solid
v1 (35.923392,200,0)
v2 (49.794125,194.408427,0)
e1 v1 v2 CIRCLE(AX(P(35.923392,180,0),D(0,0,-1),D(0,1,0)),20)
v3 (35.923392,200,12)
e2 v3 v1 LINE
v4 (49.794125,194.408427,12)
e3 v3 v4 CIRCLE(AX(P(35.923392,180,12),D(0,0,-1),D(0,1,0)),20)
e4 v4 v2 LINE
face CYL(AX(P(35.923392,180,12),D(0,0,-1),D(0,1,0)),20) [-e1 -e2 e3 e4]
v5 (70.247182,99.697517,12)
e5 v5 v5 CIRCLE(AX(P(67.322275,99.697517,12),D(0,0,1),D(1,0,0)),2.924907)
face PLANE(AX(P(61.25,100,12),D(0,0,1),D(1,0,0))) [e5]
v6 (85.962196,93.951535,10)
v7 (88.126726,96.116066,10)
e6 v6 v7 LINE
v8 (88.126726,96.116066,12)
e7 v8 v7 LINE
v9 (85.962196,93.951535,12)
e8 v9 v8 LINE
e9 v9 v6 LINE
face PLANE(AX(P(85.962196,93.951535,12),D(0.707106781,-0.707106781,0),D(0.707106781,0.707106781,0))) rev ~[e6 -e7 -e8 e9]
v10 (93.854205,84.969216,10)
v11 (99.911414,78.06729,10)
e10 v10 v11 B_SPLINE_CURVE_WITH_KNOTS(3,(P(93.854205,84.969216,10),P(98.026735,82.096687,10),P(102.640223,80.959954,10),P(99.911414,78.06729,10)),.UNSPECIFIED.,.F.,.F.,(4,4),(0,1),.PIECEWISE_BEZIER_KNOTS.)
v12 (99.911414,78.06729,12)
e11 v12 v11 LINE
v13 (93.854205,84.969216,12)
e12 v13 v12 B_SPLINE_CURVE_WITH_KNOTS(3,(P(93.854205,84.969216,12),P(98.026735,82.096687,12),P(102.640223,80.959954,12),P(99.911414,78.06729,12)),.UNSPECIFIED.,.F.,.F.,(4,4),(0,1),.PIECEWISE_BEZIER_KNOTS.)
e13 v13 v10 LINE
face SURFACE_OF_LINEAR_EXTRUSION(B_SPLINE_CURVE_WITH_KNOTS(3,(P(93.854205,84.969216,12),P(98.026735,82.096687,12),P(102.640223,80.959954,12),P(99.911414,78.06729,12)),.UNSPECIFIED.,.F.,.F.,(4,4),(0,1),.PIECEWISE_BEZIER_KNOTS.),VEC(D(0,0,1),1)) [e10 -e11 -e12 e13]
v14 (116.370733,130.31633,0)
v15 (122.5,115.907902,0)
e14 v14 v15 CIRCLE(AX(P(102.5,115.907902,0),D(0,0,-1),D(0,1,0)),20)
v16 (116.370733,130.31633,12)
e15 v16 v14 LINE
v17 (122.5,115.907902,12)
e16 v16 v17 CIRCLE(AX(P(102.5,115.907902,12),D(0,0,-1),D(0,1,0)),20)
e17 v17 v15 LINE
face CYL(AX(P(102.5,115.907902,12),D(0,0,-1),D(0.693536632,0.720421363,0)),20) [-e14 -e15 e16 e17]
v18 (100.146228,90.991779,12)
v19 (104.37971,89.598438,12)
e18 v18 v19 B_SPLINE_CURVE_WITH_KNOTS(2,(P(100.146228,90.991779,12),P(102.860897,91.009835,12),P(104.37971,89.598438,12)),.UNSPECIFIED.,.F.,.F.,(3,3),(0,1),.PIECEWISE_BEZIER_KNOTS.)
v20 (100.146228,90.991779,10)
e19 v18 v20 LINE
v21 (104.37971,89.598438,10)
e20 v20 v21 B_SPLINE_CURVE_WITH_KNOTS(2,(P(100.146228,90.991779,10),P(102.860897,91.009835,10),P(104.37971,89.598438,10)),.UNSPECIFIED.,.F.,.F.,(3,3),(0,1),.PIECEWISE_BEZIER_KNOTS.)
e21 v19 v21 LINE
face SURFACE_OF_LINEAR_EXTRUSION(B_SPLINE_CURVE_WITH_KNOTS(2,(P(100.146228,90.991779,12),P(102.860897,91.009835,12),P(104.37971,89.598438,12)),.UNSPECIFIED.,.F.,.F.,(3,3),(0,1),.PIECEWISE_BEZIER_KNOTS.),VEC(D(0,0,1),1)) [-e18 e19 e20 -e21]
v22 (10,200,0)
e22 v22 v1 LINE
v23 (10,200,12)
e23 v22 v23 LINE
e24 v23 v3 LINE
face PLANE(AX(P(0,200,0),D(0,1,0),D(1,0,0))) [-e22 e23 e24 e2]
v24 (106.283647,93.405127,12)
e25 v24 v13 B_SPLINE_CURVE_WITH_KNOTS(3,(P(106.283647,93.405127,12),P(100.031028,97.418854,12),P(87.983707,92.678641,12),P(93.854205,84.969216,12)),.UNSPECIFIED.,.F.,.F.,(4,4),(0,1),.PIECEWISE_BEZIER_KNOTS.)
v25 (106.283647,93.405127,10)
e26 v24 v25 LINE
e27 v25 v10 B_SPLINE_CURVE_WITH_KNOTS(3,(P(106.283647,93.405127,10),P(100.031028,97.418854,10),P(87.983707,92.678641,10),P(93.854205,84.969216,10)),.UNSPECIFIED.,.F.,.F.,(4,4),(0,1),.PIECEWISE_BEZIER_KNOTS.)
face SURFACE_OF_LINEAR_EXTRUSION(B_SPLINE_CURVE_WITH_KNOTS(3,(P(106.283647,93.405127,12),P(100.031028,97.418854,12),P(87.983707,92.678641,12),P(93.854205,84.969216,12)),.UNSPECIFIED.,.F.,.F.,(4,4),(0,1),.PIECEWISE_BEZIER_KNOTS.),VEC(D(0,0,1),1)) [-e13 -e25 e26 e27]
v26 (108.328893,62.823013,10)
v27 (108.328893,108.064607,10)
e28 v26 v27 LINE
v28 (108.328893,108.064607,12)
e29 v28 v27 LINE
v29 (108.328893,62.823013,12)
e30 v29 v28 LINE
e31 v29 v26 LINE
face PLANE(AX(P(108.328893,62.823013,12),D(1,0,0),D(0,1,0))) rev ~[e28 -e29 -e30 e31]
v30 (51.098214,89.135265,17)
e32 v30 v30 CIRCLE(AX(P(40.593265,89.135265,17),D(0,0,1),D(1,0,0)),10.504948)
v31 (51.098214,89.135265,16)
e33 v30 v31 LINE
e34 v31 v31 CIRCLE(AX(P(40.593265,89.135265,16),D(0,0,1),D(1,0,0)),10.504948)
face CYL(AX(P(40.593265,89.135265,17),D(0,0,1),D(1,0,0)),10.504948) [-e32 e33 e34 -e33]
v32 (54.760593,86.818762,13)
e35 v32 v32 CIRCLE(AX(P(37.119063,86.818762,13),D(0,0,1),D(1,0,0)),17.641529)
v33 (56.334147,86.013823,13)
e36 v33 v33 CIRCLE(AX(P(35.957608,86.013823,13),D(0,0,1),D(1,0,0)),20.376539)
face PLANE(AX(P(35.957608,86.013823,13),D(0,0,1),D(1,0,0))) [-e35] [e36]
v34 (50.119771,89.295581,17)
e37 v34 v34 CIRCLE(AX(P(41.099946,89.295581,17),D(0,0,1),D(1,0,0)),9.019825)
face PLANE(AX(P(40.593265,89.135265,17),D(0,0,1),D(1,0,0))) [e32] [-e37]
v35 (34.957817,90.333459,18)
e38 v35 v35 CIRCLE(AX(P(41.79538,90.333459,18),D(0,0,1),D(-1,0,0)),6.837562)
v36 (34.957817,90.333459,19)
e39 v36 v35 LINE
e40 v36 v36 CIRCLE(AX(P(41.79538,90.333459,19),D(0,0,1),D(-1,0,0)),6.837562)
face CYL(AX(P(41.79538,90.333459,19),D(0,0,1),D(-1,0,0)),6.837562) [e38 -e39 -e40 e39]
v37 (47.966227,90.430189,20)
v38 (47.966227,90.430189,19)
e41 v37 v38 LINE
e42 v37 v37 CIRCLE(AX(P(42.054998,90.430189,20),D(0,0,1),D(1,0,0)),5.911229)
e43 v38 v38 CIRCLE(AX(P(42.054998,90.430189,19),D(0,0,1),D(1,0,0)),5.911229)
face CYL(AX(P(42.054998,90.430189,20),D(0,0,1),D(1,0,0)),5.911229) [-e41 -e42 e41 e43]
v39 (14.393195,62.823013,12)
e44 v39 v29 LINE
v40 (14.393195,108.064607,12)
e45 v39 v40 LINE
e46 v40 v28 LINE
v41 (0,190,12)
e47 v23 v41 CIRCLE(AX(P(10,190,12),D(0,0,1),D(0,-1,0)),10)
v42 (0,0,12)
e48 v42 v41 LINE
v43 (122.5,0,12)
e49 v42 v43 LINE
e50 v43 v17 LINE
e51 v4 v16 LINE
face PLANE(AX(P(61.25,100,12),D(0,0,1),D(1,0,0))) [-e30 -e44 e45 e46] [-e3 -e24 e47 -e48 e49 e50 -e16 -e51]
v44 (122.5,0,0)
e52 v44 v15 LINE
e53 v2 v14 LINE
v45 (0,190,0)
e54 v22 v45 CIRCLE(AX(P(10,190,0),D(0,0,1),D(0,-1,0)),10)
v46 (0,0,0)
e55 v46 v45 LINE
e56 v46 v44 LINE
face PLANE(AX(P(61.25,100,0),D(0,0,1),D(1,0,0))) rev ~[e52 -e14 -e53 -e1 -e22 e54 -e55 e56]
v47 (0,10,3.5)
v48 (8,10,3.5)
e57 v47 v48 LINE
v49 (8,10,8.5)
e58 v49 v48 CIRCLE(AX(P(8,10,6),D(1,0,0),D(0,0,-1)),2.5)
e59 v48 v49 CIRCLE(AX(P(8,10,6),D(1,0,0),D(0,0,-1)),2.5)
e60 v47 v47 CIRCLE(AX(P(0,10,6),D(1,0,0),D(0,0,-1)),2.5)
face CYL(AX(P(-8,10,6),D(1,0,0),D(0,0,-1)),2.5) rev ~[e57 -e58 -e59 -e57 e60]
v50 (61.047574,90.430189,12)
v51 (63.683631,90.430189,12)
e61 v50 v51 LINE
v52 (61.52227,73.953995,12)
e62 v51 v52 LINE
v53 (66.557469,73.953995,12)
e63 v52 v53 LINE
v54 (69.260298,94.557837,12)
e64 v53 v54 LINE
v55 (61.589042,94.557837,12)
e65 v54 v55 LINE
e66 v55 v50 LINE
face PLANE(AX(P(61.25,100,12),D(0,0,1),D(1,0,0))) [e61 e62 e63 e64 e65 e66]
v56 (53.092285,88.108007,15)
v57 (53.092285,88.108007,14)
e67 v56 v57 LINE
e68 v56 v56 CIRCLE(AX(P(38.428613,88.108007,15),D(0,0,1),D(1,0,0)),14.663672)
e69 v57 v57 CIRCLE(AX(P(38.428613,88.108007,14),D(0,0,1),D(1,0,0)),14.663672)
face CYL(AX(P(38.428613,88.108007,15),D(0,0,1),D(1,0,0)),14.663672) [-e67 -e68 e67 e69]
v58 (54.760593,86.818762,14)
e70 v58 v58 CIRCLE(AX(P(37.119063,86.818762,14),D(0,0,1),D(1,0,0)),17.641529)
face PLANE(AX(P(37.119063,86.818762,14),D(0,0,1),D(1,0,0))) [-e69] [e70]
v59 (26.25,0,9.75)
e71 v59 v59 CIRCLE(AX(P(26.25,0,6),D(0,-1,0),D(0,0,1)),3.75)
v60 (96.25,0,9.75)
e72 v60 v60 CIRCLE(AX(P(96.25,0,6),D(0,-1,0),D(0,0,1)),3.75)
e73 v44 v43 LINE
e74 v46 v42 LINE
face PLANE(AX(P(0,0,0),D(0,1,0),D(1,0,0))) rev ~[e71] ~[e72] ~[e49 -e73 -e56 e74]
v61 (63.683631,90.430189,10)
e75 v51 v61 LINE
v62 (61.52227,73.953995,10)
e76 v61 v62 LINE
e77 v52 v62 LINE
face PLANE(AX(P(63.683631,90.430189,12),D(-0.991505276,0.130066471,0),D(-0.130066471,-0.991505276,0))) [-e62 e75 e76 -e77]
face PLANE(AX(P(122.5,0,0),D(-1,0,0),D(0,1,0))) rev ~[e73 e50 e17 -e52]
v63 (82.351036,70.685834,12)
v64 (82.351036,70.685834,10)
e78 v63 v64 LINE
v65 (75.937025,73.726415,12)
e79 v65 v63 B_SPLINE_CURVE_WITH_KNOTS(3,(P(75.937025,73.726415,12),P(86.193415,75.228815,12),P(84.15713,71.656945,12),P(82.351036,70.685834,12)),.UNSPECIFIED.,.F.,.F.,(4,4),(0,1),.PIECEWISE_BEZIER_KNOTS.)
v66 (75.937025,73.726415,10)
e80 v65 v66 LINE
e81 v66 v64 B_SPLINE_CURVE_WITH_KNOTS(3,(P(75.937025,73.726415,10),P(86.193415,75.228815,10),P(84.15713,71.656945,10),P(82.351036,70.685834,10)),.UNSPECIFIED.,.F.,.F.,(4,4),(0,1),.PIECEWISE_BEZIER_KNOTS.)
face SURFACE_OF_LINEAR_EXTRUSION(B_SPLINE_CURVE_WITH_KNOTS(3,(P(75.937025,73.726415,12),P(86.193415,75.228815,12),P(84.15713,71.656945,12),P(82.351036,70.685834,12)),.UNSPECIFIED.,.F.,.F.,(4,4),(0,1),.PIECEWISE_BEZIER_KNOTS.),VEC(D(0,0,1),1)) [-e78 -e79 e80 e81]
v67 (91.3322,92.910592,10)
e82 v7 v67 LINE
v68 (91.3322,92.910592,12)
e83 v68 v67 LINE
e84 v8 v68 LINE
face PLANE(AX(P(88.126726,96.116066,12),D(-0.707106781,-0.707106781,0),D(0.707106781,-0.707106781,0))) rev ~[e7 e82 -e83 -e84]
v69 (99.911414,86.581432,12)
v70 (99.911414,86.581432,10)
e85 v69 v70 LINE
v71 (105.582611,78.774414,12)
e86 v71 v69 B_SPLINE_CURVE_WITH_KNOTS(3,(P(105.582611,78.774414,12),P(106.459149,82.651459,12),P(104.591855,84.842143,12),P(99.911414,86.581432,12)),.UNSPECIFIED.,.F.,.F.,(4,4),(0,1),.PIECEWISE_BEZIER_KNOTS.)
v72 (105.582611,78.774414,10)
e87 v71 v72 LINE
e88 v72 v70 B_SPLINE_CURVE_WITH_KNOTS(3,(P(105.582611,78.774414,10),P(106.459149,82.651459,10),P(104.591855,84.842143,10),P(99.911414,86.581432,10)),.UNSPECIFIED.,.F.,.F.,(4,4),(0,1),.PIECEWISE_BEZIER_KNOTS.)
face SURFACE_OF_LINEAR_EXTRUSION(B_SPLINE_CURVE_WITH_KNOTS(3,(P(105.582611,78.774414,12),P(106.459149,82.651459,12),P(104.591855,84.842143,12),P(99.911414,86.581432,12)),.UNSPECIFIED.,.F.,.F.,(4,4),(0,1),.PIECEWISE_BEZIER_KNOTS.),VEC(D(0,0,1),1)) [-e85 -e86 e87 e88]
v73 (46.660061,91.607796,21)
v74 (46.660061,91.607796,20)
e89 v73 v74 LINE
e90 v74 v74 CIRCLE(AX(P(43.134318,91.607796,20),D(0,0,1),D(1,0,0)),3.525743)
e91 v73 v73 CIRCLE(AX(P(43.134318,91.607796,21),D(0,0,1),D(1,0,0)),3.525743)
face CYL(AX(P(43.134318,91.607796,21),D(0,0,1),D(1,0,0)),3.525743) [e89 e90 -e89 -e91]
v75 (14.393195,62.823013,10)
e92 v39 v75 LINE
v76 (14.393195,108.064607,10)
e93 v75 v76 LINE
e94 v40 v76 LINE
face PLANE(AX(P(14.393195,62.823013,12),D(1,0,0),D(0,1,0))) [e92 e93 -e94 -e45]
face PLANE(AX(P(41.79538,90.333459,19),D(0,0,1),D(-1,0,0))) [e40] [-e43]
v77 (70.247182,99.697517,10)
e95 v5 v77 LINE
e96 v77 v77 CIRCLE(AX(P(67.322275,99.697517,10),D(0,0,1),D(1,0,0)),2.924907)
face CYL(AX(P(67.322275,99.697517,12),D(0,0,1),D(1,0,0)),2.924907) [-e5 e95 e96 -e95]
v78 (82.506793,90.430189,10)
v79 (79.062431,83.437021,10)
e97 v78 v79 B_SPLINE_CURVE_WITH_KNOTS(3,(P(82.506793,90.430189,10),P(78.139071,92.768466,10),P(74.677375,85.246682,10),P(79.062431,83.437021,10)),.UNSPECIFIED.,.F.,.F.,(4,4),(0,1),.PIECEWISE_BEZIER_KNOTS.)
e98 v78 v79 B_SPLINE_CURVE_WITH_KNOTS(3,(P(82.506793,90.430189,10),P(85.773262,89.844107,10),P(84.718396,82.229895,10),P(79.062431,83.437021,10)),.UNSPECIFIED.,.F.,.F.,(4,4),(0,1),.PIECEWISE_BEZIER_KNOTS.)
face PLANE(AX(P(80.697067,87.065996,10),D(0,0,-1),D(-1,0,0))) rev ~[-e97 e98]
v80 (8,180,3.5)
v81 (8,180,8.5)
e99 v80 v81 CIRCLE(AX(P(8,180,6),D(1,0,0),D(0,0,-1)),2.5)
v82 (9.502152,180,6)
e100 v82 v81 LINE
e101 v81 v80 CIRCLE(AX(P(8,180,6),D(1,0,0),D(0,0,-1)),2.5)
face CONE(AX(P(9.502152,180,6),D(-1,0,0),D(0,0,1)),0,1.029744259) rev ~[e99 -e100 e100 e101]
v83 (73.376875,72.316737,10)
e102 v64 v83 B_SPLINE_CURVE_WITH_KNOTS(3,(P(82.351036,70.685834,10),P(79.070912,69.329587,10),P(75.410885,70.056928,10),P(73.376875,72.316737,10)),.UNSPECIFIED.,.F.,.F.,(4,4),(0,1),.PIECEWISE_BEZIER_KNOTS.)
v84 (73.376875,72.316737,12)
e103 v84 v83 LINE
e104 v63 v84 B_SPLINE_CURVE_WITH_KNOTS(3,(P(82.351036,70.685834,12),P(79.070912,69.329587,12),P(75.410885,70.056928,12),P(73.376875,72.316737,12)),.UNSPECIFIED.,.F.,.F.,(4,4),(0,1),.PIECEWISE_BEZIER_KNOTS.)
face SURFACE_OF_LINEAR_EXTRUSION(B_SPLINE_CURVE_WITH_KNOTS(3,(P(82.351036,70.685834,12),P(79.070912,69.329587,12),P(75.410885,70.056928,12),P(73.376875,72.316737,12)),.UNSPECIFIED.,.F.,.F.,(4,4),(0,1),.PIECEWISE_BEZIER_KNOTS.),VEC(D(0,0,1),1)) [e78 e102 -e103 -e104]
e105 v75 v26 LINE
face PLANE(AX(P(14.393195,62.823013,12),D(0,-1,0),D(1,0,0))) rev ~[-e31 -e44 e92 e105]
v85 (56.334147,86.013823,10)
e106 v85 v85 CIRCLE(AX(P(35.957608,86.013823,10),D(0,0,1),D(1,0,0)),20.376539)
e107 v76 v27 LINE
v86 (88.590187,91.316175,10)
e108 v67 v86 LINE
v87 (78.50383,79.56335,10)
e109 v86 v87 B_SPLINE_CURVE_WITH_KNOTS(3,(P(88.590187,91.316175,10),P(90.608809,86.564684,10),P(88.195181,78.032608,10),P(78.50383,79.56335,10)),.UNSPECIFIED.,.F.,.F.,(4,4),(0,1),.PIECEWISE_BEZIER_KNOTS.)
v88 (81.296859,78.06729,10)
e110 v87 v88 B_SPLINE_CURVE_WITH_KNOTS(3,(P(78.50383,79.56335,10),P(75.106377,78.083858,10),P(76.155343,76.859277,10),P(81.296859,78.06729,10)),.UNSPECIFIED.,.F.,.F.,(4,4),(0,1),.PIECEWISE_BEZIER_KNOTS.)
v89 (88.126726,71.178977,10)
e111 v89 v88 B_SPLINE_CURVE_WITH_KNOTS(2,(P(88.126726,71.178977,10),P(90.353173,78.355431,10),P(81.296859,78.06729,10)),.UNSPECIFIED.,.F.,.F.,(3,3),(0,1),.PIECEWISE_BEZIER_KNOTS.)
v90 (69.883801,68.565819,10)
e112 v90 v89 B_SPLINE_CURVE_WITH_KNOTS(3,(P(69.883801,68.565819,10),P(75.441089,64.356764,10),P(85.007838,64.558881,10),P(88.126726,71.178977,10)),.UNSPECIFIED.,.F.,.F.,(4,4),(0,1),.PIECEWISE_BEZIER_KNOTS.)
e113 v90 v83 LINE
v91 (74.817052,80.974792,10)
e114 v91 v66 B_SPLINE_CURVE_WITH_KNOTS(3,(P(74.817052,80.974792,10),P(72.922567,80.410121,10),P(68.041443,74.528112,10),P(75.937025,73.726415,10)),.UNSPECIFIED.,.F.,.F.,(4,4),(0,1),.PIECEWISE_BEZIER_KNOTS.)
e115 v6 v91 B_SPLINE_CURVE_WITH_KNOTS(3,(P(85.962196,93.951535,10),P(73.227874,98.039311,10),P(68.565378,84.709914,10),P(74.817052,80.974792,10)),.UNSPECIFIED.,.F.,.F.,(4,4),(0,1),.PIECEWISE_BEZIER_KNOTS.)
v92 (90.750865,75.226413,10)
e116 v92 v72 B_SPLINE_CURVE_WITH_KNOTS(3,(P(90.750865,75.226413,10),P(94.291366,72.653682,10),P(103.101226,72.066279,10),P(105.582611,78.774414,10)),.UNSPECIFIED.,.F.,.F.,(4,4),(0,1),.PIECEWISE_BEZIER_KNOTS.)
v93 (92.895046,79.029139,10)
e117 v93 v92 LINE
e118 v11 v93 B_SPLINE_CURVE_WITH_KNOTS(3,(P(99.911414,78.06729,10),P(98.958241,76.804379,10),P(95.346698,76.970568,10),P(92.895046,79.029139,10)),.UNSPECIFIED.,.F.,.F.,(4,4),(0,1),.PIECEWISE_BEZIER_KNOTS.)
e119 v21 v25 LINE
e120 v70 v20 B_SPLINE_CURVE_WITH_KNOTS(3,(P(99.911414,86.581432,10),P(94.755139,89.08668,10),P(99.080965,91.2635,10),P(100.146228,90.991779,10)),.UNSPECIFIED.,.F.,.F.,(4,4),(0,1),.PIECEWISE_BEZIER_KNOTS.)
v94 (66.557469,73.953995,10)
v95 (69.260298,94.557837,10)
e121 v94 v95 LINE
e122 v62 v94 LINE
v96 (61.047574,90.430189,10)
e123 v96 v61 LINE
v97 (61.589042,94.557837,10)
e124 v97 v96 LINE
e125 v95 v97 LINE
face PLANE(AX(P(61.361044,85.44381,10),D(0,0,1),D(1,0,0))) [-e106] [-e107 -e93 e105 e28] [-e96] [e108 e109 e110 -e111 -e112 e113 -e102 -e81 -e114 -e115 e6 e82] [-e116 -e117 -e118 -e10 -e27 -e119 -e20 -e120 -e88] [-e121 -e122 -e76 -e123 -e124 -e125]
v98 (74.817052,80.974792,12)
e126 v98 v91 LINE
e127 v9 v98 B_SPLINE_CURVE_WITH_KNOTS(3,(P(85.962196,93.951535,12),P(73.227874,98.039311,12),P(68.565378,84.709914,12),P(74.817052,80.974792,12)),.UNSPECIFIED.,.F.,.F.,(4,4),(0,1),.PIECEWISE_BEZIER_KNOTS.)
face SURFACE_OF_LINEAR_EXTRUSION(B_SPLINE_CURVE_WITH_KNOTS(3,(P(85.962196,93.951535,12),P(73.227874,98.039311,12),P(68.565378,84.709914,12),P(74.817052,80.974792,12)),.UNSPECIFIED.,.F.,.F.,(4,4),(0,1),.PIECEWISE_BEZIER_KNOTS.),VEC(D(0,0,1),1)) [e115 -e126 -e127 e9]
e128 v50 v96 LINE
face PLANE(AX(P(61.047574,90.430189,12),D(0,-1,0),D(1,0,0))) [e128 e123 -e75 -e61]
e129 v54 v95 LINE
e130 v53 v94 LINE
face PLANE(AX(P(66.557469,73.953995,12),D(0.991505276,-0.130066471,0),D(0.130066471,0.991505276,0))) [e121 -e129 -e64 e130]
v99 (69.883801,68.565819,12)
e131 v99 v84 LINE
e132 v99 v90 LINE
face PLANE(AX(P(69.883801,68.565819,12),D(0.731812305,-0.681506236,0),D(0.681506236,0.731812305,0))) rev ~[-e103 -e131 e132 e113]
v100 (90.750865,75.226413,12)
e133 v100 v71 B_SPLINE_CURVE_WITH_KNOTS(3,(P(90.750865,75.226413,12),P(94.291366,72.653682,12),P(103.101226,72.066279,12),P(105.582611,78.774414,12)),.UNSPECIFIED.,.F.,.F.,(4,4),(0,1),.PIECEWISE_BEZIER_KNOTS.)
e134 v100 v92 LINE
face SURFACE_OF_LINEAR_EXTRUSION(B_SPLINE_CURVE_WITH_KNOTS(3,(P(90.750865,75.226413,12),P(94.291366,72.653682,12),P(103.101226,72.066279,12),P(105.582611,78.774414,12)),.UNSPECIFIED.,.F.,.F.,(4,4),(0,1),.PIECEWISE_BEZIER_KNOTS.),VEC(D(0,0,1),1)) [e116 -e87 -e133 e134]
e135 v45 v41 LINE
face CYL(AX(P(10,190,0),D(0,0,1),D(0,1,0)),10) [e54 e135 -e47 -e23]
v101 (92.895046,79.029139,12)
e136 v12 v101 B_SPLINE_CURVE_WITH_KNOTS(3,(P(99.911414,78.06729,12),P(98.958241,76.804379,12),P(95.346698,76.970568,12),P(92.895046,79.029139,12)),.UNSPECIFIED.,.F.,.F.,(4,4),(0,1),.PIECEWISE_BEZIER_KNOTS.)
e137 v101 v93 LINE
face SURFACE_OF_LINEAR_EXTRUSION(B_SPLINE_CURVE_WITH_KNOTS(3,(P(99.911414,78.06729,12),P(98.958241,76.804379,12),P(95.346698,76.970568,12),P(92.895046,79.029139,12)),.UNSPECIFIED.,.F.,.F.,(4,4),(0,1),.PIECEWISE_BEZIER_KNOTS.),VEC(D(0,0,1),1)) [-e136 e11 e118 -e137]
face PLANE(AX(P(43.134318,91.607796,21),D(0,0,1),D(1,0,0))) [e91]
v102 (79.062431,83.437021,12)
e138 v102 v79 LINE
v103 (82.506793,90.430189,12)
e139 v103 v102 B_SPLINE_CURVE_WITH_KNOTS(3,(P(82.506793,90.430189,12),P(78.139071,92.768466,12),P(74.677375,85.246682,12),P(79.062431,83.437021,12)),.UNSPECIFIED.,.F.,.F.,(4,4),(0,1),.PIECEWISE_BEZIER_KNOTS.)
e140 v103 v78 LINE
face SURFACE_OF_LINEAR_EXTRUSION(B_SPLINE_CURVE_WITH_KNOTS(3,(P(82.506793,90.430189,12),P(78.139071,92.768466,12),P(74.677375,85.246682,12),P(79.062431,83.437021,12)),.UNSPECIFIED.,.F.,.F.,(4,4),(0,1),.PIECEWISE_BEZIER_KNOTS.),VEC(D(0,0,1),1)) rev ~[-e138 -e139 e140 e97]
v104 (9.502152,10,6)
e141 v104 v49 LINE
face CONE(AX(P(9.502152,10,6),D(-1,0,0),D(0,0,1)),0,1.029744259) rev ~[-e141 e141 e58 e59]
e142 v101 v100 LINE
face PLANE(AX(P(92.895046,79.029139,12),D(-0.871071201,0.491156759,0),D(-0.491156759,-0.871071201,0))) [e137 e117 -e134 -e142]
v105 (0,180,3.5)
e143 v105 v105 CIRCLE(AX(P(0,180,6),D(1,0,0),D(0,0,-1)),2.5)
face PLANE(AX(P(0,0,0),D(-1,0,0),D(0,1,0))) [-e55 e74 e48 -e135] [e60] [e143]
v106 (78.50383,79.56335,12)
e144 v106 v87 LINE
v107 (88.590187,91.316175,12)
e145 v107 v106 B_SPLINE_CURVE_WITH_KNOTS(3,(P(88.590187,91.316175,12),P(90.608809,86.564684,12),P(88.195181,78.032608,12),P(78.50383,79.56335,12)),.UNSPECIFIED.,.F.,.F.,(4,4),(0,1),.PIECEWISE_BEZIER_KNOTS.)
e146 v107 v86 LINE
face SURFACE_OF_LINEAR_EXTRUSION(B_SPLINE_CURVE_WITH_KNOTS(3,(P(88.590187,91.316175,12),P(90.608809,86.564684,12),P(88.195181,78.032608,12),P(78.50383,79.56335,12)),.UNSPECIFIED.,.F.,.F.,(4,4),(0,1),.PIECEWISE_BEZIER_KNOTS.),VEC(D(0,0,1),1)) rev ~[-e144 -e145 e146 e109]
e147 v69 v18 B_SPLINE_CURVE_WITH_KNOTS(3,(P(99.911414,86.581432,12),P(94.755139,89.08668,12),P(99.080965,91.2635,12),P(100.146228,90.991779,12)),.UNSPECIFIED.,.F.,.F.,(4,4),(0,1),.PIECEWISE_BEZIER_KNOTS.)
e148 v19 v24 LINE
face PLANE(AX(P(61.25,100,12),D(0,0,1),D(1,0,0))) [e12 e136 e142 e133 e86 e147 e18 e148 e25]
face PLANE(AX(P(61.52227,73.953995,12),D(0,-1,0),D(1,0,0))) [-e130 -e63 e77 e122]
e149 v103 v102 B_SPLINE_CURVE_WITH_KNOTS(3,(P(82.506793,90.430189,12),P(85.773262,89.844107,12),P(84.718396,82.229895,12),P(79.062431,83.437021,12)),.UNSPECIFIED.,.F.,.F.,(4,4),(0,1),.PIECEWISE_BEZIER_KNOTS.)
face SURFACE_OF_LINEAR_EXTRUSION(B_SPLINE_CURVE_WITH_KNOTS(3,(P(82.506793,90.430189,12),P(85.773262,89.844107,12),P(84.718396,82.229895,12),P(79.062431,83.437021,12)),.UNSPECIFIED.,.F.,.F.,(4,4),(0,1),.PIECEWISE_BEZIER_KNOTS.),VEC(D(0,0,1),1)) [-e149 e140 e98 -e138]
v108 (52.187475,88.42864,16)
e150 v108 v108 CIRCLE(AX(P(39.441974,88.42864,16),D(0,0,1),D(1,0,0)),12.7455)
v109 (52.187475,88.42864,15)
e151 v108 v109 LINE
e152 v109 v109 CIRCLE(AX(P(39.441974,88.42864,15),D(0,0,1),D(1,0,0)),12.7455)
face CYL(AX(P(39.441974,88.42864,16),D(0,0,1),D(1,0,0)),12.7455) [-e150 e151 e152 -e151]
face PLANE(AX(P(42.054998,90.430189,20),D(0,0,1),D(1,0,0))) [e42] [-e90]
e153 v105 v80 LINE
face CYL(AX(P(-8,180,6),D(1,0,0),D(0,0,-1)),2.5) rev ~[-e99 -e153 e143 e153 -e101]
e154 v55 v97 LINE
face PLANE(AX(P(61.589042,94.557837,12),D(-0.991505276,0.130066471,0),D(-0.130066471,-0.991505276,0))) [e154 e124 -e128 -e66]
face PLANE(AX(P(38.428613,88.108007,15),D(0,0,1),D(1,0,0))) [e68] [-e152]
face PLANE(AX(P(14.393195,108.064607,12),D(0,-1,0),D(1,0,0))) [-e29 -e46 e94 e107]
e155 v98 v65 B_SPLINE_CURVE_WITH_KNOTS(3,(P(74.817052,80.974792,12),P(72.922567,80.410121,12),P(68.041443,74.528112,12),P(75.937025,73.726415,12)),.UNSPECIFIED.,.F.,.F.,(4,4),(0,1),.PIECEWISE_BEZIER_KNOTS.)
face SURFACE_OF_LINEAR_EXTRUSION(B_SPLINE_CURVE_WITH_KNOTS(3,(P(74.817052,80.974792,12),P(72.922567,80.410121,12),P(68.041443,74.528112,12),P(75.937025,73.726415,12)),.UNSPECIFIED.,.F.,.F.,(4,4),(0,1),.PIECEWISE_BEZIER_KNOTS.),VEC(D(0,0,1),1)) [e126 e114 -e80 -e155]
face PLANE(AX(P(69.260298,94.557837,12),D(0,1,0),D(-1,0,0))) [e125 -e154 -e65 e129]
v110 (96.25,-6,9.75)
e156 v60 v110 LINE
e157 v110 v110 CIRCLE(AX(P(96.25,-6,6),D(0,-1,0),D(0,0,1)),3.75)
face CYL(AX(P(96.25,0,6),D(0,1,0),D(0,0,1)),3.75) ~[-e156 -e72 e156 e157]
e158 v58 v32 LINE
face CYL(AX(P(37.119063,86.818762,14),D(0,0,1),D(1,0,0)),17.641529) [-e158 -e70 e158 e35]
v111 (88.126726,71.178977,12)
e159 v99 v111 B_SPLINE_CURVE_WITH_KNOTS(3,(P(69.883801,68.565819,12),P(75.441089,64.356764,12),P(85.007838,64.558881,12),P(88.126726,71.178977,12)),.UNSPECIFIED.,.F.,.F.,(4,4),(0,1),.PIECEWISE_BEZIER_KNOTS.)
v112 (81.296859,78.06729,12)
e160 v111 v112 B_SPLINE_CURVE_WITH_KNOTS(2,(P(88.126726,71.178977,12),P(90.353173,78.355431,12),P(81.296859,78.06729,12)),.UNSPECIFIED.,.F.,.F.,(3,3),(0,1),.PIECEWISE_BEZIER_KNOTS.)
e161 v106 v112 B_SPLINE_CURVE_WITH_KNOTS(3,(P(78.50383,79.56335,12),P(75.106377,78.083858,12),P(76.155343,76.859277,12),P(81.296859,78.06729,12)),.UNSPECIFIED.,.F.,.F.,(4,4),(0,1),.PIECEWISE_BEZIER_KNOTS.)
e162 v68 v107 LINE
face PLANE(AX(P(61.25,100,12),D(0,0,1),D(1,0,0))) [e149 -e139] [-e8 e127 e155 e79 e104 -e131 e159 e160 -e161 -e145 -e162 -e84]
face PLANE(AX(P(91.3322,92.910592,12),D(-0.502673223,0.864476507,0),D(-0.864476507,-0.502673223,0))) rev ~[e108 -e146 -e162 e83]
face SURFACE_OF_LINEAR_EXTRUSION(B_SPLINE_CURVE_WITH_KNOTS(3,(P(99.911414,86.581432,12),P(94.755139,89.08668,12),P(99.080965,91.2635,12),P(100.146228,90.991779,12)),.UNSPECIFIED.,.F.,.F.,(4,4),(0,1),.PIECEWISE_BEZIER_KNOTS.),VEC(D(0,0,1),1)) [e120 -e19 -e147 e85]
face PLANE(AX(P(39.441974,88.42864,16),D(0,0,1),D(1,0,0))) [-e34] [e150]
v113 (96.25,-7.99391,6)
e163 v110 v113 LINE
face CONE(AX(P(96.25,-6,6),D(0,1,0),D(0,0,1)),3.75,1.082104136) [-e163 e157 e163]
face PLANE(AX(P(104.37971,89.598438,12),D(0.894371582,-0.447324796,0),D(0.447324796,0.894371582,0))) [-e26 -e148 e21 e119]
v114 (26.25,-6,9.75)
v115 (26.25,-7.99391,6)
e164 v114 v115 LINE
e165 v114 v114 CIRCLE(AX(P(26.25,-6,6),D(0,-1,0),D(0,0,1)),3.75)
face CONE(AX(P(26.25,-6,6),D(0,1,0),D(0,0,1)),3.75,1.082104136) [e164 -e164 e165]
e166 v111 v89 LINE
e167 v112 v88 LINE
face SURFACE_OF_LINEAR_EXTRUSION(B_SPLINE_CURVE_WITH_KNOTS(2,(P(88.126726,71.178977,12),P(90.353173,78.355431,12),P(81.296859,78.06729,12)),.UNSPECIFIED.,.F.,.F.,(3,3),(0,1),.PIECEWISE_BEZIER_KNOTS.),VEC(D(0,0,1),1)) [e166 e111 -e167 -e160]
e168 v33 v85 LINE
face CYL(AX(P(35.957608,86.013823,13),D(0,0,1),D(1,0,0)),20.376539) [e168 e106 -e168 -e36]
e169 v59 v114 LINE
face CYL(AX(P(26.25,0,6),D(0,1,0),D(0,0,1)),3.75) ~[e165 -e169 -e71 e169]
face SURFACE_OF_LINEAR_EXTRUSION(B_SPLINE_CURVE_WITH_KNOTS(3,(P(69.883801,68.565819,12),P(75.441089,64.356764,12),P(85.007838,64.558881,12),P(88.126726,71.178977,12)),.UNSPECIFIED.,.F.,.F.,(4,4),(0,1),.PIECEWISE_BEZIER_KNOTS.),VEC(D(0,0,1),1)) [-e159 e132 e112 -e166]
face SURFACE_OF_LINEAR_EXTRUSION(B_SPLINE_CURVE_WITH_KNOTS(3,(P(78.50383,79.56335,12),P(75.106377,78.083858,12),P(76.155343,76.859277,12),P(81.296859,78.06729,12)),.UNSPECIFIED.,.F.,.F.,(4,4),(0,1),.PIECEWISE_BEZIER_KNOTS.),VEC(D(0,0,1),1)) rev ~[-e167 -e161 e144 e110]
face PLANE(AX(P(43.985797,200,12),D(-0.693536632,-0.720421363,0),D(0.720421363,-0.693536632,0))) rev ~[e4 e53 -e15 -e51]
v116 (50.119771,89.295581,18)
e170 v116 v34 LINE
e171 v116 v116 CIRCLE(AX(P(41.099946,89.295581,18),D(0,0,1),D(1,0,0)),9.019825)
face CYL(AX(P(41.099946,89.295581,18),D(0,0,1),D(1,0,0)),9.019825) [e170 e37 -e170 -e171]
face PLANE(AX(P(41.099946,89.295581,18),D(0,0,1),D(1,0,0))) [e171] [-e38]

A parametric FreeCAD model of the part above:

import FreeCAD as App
import Part
import Sketcher

V = App.Vector
Q = App.Units.Quantity


def edges_at(feature, points):
    """Names of the edges that pass closest to the given points."""
    edges = feature.Shape.Edges
    near = lambda p: min(range(len(edges)), key=lambda i: edges[i].distToShape(Part.Vertex(*p))[0])
    return sorted({f"Edge{near(p) + 1}" for p in points})


def add_polygon(sketch, points):
    """Adds a closed chain of lines whose ends are joined by coincident constraints."""
    first, n = sketch.GeometryCount, len(points)
    for a, b in zip(points, points[1:] + points[:1]):
        sketch.addGeometry(Part.LineSegment(App.Vector(*a, 0), App.Vector(*b, 0)), False)
    for i in range(n):
        sketch.addConstraint(Sketcher.Constraint("Coincident", first + i, 2, first + (i + 1) % n, 1))

doc = App.newDocument("Part")
body = doc.addObject("PartDesign::Body", "Body")

# Sketch on XY plane
sketch1 = body.newObject("Sketcher::SketchObject", "Sketch")
sketch1.AttachmentSupport = (doc.getObject("XY_Plane"), [""])
sketch1.MapMode = "FlatFace"
add_polygon(sketch1, [(0, 200), (0, 0), (122.5, 0), (122.5, 200)])  # lines 0-3
sketch1.addConstraint([
    Sketcher.Constraint("Vertical", 0),
    Sketcher.Constraint("Horizontal", 1),
    Sketcher.Constraint("Vertical", 2),
    Sketcher.Constraint("Horizontal", 3),
    Sketcher.Constraint("Coincident", 0, 2, -1, 1),
    Sketcher.Constraint("DistanceY", 0, 2, 0, 1, Q("200 mm")),
    Sketcher.Constraint("DistanceX", 1, 1, 1, 2, Q("122.5 mm")),
])
pad1 = body.newObject("PartDesign::Pad", "Pad")
pad1.Profile = sketch1
pad1.Length = 12

# Sketch on XY plane
sketch2 = body.newObject("Sketcher::SketchObject", "Sketch001")
sketch2.AttachmentSupport = (doc.getObject("XY_Plane"), [""])
sketch2.MapMode = "FlatFace"
sketch2.AttachmentOffset = App.Placement(V(0, 0, 12), App.Rotation())
add_polygon(sketch2, [(43.985797, 200), (122.5, 124.415795), (122.5, 200)])  # lines 0-2
sketch2.addConstraint([
    Sketcher.Constraint("Vertical", 1),
    Sketcher.Constraint("Horizontal", 2),
    Sketcher.Constraint("DistanceY", -1, 1, 1, 2, Q("200 mm")),
    Sketcher.Constraint("DistanceX", -1, 1, 0, 2, Q("122.5 mm")),
    Sketcher.Constraint("DistanceX", 2, 2, 2, 1, Q("78.514203 mm")),
    Sketcher.Constraint("DistanceY", 1, 1, 1, 2, Q("75.584205 mm")),
])
pocket1 = body.newObject("PartDesign::Pocket", "Pocket")
pocket1.Profile = sketch2
pocket1.Length = 12
doc.recompute()

fillet = body.newObject("PartDesign::Fillet", "Fillet")
fillet.Base = (pocket1, edges_at(pocket1, [(43.986, 200, 6)]))
fillet.Radius = 20
doc.recompute()

fillet2 = body.newObject("PartDesign::Fillet", "Fillet001")
fillet2.Base = (fillet, edges_at(fillet, [(122.5, 124.416, 6)]))
fillet2.Radius = 20
doc.recompute()

fillet3 = body.newObject("PartDesign::Fillet", "Fillet002")
fillet3.Base = (fillet2, edges_at(fillet2, [(0, 200, 6)]))
fillet3.Radius = 10

# Sketch on XZ plane
sketch3 = body.newObject("Sketcher::SketchObject", "Sketch002")
sketch3.AttachmentSupport = (doc.getObject("XZ_Plane"), [""])
sketch3.MapMode = "FlatFace"
sketch3.addGeometry([
    Part.Circle(V(26.25, 6, 0), V(0, 0, 1), 3.75),
    Part.Circle(V(96.25, 6, 0), V(0, 0, 1), 3.75),
], False)
sketch3.addConstraint([
    Sketcher.Constraint("Equal", 0, 1),
    Sketcher.Constraint("Horizontal", 0, 3, 1, 3),
    Sketcher.Constraint("Diameter", 0, Q("7.5 mm")),
    Sketcher.Constraint("DistanceY", -1, 1, 0, 3, Q("6 mm")),
    Sketcher.Constraint("DistanceX", 0, 3, 1, 3, Q("70 mm")),
    Sketcher.Constraint("DistanceX", -1, 1, 0, 3, Q("26.25 mm")),
])
pad2 = body.newObject("PartDesign::Pad", "Pad001")
pad2.Profile = sketch3
pad2.Length = 6

# Sketch on YZ plane
sketch4 = body.newObject("Sketcher::SketchObject", "Sketch003")
sketch4.AttachmentSupport = (doc.getObject("YZ_Plane"), [""])
sketch4.MapMode = "FlatFace"
sketch4.AttachmentOffset = App.Placement(V(0, 0, 26.25), App.Rotation())
add_polygon(sketch4, [(-6, 6), (-6, 9.75), (-7.99391, 6)])  # lines 0-2
sketch4.addGeometry(Part.LineSegment(V(-6, 6, 0), V(-7.99391, 6, 0)), True)  # axis
sketch4.addConstraint([
    Sketcher.Constraint("Vertical", 0),
    Sketcher.Constraint("Horizontal", 2),
    Sketcher.Constraint("Horizontal", 3),
    Sketcher.Constraint("Coincident", 3, 1, 2, 2),
    Sketcher.Constraint("Equal", 2, 3),
    Sketcher.Constraint("Angle", 1, Q("-118 deg")),
    Sketcher.Constraint("DistanceX", 0, 2, -1, 1, Q("6 mm")),
    Sketcher.Constraint("DistanceY", -1, 1, 1, 2, Q("6 mm")),
    Sketcher.Constraint("DistanceY", 0, 1, 0, 2, Q("3.75 mm")),
])
revolution = body.newObject("PartDesign::Revolution", "Revolution")
revolution.Profile = sketch4
revolution.ReferenceAxis = (sketch4, ["Axis0"])
revolution.Angle = 360

# Sketch on YZ plane
sketch5 = body.newObject("Sketcher::SketchObject", "Sketch004")
sketch5.AttachmentSupport = (doc.getObject("YZ_Plane"), [""])
sketch5.MapMode = "FlatFace"
sketch5.AttachmentOffset = App.Placement(V(0, 0, 96.25), App.Rotation())
add_polygon(sketch5, [(-6, 6), (-6, 9.75), (-7.99391, 6)])  # lines 0-2
sketch5.addGeometry(Part.LineSegment(V(-6, 6, 0), V(-7.99391, 6, 0)), True)  # axis
sketch5.addConstraint([
    Sketcher.Constraint("Vertical", 0),
    Sketcher.Constraint("Horizontal", 2),
    Sketcher.Constraint("Horizontal", 3),
    Sketcher.Constraint("Coincident", 3, 1, 2, 2),
    Sketcher.Constraint("Equal", 2, 3),
    Sketcher.Constraint("Angle", 1, Q("-118 deg")),
    Sketcher.Constraint("DistanceX", 0, 2, -1, 1, Q("6 mm")),
    Sketcher.Constraint("DistanceY", -1, 1, 1, 2, Q("6 mm")),
    Sketcher.Constraint("DistanceY", 0, 1, 0, 2, Q("3.75 mm")),
])
revolution2 = body.newObject("PartDesign::Revolution", "Revolution001")
revolution2.Profile = sketch5
revolution2.ReferenceAxis = (sketch5, ["Axis0"])
revolution2.Angle = 360

# Sketch on YZ plane
sketch6 = body.newObject("Sketcher::SketchObject", "Sketch005")
sketch6.AttachmentSupport = (doc.getObject("YZ_Plane"), [""])
sketch6.MapMode = "FlatFace"
sketch6.addGeometry(Part.Circle(V(180, 6, 0), V(0, 0, 1), 2.5), False)
sketch6.addConstraint([
    Sketcher.Constraint("Diameter", 0, Q("5 mm")),
    Sketcher.Constraint("DistanceX", -1, 1, 0, 3, Q("180 mm")),
    Sketcher.Constraint("DistanceY", -1, 1, 0, 3, Q("6 mm")),
])
doc.recompute()
hole = body.newObject("PartDesign::Hole", "Hole")
hole.Profile = sketch6
hole.ThreadType = "None"
hole.Diameter = 5
hole.DepthType = "Dimension"
hole.Depth = 8
hole.DrillPoint = "Angled"
hole.DrillPointAngle = 118
hole.Reversed = True

# Sketch on YZ plane
sketch7 = body.newObject("Sketcher::SketchObject", "Sketch006")
sketch7.AttachmentSupport = (doc.getObject("YZ_Plane"), [""])
sketch7.MapMode = "FlatFace"
sketch7.addGeometry(Part.Circle(V(10, 6, 0), V(0, 0, 1), 2.5), False)
sketch7.addConstraint([
    Sketcher.Constraint("Diameter", 0, Q("5 mm")),
    Sketcher.Constraint("DistanceX", -1, 1, 0, 3, Q("10 mm")),
    Sketcher.Constraint("DistanceY", -1, 1, 0, 3, Q("6 mm")),
])
doc.recompute()
hole2 = body.newObject("PartDesign::Hole", "Hole001")
hole2.Profile = sketch7
hole2.ThreadType = "None"
hole2.Diameter = 5
hole2.DepthType = "Dimension"
hole2.Depth = 8
hole2.DrillPoint = "Angled"
hole2.DrillPointAngle = 118
hole2.Reversed = True

# Sketch on XY plane
sketch8 = body.newObject("Sketcher::SketchObject", "Sketch007")
sketch8.AttachmentSupport = (doc.getObject("XY_Plane"), [""])
sketch8.MapMode = "FlatFace"
sketch8.AttachmentOffset = App.Placement(V(0, 0, 12), App.Rotation())
add_polygon(sketch8, [(14.393195, 108.064607), (14.393195, 62.823013), (108.328893, 62.823013), (108.328893, 108.064607)])  # lines 0-3
add_polygon(sketch8, [(61.589042, 94.557837), (69.260298, 94.557837), (66.557469, 73.953995), (61.52227, 73.953995), (63.683631, 90.430189), (61.047574, 90.430189)])  # lines 4-9
sketch8.addGeometry(Part.LineSegment(V(91.3322, 92.910592, 0), V(88.590187, 91.316175, 0)), False)  # 10
sketch8.addGeometry(Part.BSplineCurve([V(88.590187, 91.316175, 0), V(90.608809, 86.564684, 0), V(88.195181, 78.032608, 0), V(78.50383, 79.56335, 0)], [4, 4], [0, 1], False, 3, [1, 1, 1, 1], False), False)  # 11
sketch8.addGeometry(Part.BSplineCurve([V(78.50383, 79.56335, 0), V(75.106377, 78.083858, 0), V(76.155343, 76.859277, 0), V(81.296859, 78.06729, 0)], [4, 4], [0, 1], False, 3, [1, 1, 1, 1], False), False)  # 12
sketch8.addGeometry(Part.BSplineCurve([V(88.126726, 71.178977, 0), V(90.353173, 78.355431, 0), V(81.296859, 78.06729, 0)], [3, 3], [0, 1], False, 2, [1, 1, 1], False), False)  # 13
sketch8.addGeometry(Part.BSplineCurve([V(69.883801, 68.565819, 0), V(75.441089, 64.356764, 0), V(85.007838, 64.558881, 0), V(88.126726, 71.178977, 0)], [4, 4], [0, 1], False, 3, [1, 1, 1, 1], False), False)  # 14
sketch8.addGeometry(Part.LineSegment(V(69.883801, 68.565819, 0), V(73.376875, 72.316737, 0)), False)  # 15
sketch8.addGeometry(Part.BSplineCurve([V(82.351036, 70.685834, 0), V(79.070912, 69.329587, 0), V(75.410885, 70.056928, 0), V(73.376875, 72.316737, 0)], [4, 4], [0, 1], False, 3, [1, 1, 1, 1], False), False)  # 16
sketch8.addGeometry(Part.BSplineCurve([V(75.937025, 73.726415, 0), V(86.193415, 75.228815, 0), V(84.15713, 71.656945, 0), V(82.351036, 70.685834, 0)], [4, 4], [0, 1], False, 3, [1, 1, 1, 1], False), False)  # 17
sketch8.addGeometry(Part.BSplineCurve([V(74.817052, 80.974792, 0), V(72.922567, 80.410121, 0), V(68.041443, 74.528112, 0), V(75.937025, 73.726415, 0)], [4, 4], [0, 1], False, 3, [1, 1, 1, 1], False), False)  # 18
sketch8.addGeometry(Part.BSplineCurve([V(85.962196, 93.951535, 0), V(73.227874, 98.039311, 0), V(68.565378, 84.709914, 0), V(74.817052, 80.974792, 0)], [4, 4], [0, 1], False, 3, [1, 1, 1, 1], False), False)  # 19
sketch8.addGeometry(Part.LineSegment(V(85.962196, 93.951535, 0), V(88.126726, 96.116066, 0)), False)  # 20
sketch8.addGeometry(Part.LineSegment(V(88.126726, 96.116066, 0), V(91.3322, 92.910592, 0)), False)  # 21
sketch8.addGeometry(Part.BSplineCurve([V(100.146228, 90.991779, 0), V(102.860897, 91.009835, 0), V(104.37971, 89.598438, 0)], [3, 3], [0, 1], False, 2, [1, 1, 1], False), False)  # 22
sketch8.addGeometry(Part.BSplineCurve([V(99.911414, 86.581432, 0), V(94.755139, 89.08668, 0), V(99.080965, 91.2635, 0), V(100.146228, 90.991779, 0)], [4, 4], [0, 1], False, 3, [1, 1, 1, 1], False), False)  # 23
sketch8.addGeometry(Part.BSplineCurve([V(105.582611, 78.774414, 0), V(106.459149, 82.651459, 0), V(104.591855, 84.842143, 0), V(99.911414, 86.581432, 0)], [4, 4], [0, 1], False, 3, [1, 1, 1, 1], False), False)  # 24
sketch8.addGeometry(Part.BSplineCurve([V(90.750865, 75.226413, 0), V(94.291366, 72.653682, 0), V(103.101226, 72.066279, 0), V(105.582611, 78.774414, 0)], [4, 4], [0, 1], False, 3, [1, 1, 1, 1], False), False)  # 25
sketch8.addGeometry(Part.LineSegment(V(90.750865, 75.226413, 0), V(92.895046, 79.029139, 0)), False)  # 26
sketch8.addGeometry(Part.BSplineCurve([V(99.911414, 78.06729, 0), V(98.958241, 76.804379, 0), V(95.346698, 76.970568, 0), V(92.895046, 79.029139, 0)], [4, 4], [0, 1], False, 3, [1, 1, 1, 1], False), False)  # 27
sketch8.addGeometry(Part.BSplineCurve([V(93.854205, 84.969216, 0), V(98.026735, 82.096687, 0), V(102.640223, 80.959954, 0), V(99.911414, 78.06729, 0)], [4, 4], [0, 1], False, 3, [1, 1, 1, 1], False), False)  # 28
sketch8.addGeometry(Part.BSplineCurve([V(106.283647, 93.405127, 0), V(100.031028, 97.418854, 0), V(87.983707, 92.678641, 0), V(93.854205, 84.969216, 0)], [4, 4], [0, 1], False, 3, [1, 1, 1, 1], False), False)  # 29
sketch8.addGeometry(Part.LineSegment(V(106.283647, 93.405127, 0), V(104.37971, 89.598438, 0)), False)  # 30
sketch8.addGeometry(Part.Circle(V(35.957608, 86.013823, 0), V(0, 0, 1), 20.376539), False)  # 31
sketch8.addGeometry(Part.Circle(V(67.322275, 99.697517, 0), V(0, 0, 1), 2.924907), False)  # 32
sketch8.addConstraint([
    Sketcher.Constraint("Block", 11),
    Sketcher.Constraint("Block", 12),
    Sketcher.Constraint("Block", 13),
    Sketcher.Constraint("Block", 14),
    Sketcher.Constraint("Block", 16),
    Sketcher.Constraint("Block", 17),
    Sketcher.Constraint("Block", 18),
    Sketcher.Constraint("Block", 19),
    Sketcher.Constraint("Block", 22),
    Sketcher.Constraint("Block", 23),
    Sketcher.Constraint("Block", 24),
    Sketcher.Constraint("Block", 25),
    Sketcher.Constraint("Block", 27),
    Sketcher.Constraint("Block", 28),
    Sketcher.Constraint("Block", 29),
    Sketcher.Constraint("Coincident", 10, 2, 11, 1),
    Sketcher.Constraint("Coincident", 14, 1, 15, 1),
    Sketcher.Constraint("Coincident", 15, 2, 16, 2),
    Sketcher.Constraint("Coincident", 19, 1, 20, 1),
    Sketcher.Constraint("Coincident", 20, 2, 21, 1),
    Sketcher.Constraint("Coincident", 21, 2, 10, 1),
    Sketcher.Constraint("Coincident", 25, 1, 26, 1),
    Sketcher.Constraint("Coincident", 26, 2, 27, 2),
    Sketcher.Constraint("Coincident", 29, 1, 30, 1),
    Sketcher.Constraint("Coincident", 30, 2, 22, 2),
    Sketcher.Constraint("Vertical", 0),
    Sketcher.Constraint("Horizontal", 1),
    Sketcher.Constraint("Vertical", 2),
    Sketcher.Constraint("Horizontal", 3),
    Sketcher.Constraint("Horizontal", 4),
    Sketcher.Constraint("Horizontal", 6),
    Sketcher.Constraint("Horizontal", 8),
    Sketcher.Constraint("Parallel", 5, 7),
    Sketcher.Constraint("Parallel", 7, 9),
    Sketcher.Constraint("Perpendicular", 20, 21),
    Sketcher.Constraint("Angle", 20, Q("45 deg")),
    Sketcher.Constraint("Diameter", 31, Q("40.753078 mm")),
    Sketcher.Constraint("Diameter", 32, Q("5.849814 mm")),
    Sketcher.Constraint("DistanceX", 6, 2, 6, 1, Q("5.035199 mm")),
    Sketcher.Constraint("DistanceX", -1, 1, 21, 2, Q("91.3322 mm")),
    Sketcher.Constraint("DistanceX", 8, 2, 32, 3, Q("6.274702 mm")),
    Sketcher.Constraint("DistanceX", 8, 2, 15, 2, Q("12.329301 mm")),
    Sketcher.Constraint("DistanceY", 15, 2, 4, 2, Q("22.241099 mm")),
    Sketcher.Constraint("DistanceX", 4, 2, 21, 2, Q("22.071902 mm")),
    Sketcher.Constraint("Distance", 9, Q("4.163012 mm")),
    Sketcher.Constraint("Distance", 20, Q("3.061108 mm")),
    Sketcher.Constraint("DistanceX", 1, 1, 1, 2, Q("93.935697 mm")),
    Sketcher.Constraint("DistanceX", 4, 1, 4, 2, Q("7.671256 mm")),
    Sketcher.Constraint("DistanceY", 0, 2, 0, 1, Q("45.241594 mm")),
    Sketcher.Constraint("DistanceX", -1, 1, 5, 2, Q("66.557469 mm")),
    Sketcher.Constraint("DistanceY", 0, 2, 31, 3, Q("23.19081 mm")),
    Sketcher.Constraint("DistanceX", 0, 2, 32, 3, Q("52.92908 mm")),
    Sketcher.Constraint("DistanceY", 32, 3, 2, 2, Q("8.36709 mm")),
    Sketcher.Constraint("DistanceY", 4, 2, 32, 3, Q("5.13968 mm")),
    Sketcher.Constraint("DistanceX", 31, 3, 4, 2, Q("33.30269 mm")),
])
pocket2 = body.newObject("PartDesign::Pocket", "Pocket001")
pocket2.Profile = sketch8
pocket2.Length = 2

# Sketch on XY plane
sketch9 = body.newObject("Sketcher::SketchObject", "Sketch008")
sketch9.AttachmentSupport = (doc.getObject("XY_Plane"), [""])
sketch9.MapMode = "FlatFace"
sketch9.AttachmentOffset = App.Placement(V(0, 0, 13), App.Rotation())
sketch9.addGeometry([
    Part.Circle(V(35.957608, 86.013823, 0), V(0, 0, 1), 20.376539),
    Part.Circle(V(37.119063, 86.818762, 0), V(0, 0, 1), 17.641529),
], False)
sketch9.addConstraint([
    Sketcher.Constraint("Diameter", 0, Q("40.753078 mm")),
    Sketcher.Constraint("Diameter", 1, Q("35.283059 mm")),
    Sketcher.Constraint("DistanceY", -1, 1, 1, 3, Q("86.818762 mm")),
    Sketcher.Constraint("DistanceY", 0, 3, 1, 3, Q("0.804939 mm")),
    Sketcher.Constraint("DistanceX", -1, 1, 0, 3, Q("35.957608 mm")),
    Sketcher.Constraint("DistanceX", -1, 1, 1, 3, Q("37.119063 mm")),
])
pad3 = body.newObject("PartDesign::Pad", "Pad002")
pad3.Profile = sketch9
pad3.Length = 1
pad3.Reversed = True

# Sketch on XY plane
sketch10 = body.newObject("Sketcher::SketchObject", "Sketch009")
sketch10.AttachmentSupport = (doc.getObject("XY_Plane"), [""])
sketch10.MapMode = "FlatFace"
sketch10.AttachmentOffset = App.Placement(V(0, 0, 14), App.Rotation())
sketch10.addGeometry([
    Part.Circle(V(37.119063, 86.818762, 0), V(0, 0, 1), 17.641529),
    Part.Circle(V(38.428613, 88.108007, 0), V(0, 0, 1), 14.663672),
], False)
sketch10.addConstraint([
    Sketcher.Constraint("Diameter", 0, Q("35.283059 mm")),
    Sketcher.Constraint("Diameter", 1, Q("29.327345 mm")),
    Sketcher.Constraint("DistanceY", -1, 1, 0, 3, Q("86.818762 mm")),
    Sketcher.Constraint("DistanceX", 0, 3, 1, 3, Q("1.309549 mm")),
    Sketcher.Constraint("DistanceX", -1, 1, 0, 3, Q("37.119063 mm")),
    Sketcher.Constraint("DistanceY", -1, 1, 1, 3, Q("88.108007 mm")),
])
pad4 = body.newObject("PartDesign::Pad", "Pad003")
pad4.Profile = sketch10
pad4.Length = 2
pad4.Reversed = True

# Sketch on XY plane
sketch11 = body.newObject("Sketcher::SketchObject", "Sketch010")
sketch11.AttachmentSupport = (doc.getObject("XY_Plane"), [""])
sketch11.MapMode = "FlatFace"
sketch11.AttachmentOffset = App.Placement(V(0, 0, 15), App.Rotation())
sketch11.addGeometry([
    Part.Circle(V(38.428613, 88.108007, 0), V(0, 0, 1), 14.663672),
    Part.Circle(V(39.441974, 88.42864, 0), V(0, 0, 1), 12.7455),
], False)
sketch11.addConstraint([
    Sketcher.Constraint("Diameter", 1, Q("25.491001 mm")),
    Sketcher.Constraint("Diameter", 0, Q("29.327345 mm")),
    Sketcher.Constraint("DistanceY", -1, 1, 1, 3, Q("88.42864 mm")),
    Sketcher.Constraint("DistanceX", 0, 3, 1, 3, Q("1.013362 mm")),
    Sketcher.Constraint("DistanceX", -1, 1, 0, 3, Q("38.428613 mm")),
    Sketcher.Constraint("DistanceY", -1, 1, 0, 3, Q("88.108007 mm")),
])
pad5 = body.newObject("PartDesign::Pad", "Pad004")
pad5.Profile = sketch11
pad5.Length = 3
pad5.Reversed = True

# Sketch on XY plane
sketch12 = body.newObject("Sketcher::SketchObject", "Sketch011")
sketch12.AttachmentSupport = (doc.getObject("XY_Plane"), [""])
sketch12.MapMode = "FlatFace"
sketch12.AttachmentOffset = App.Placement(V(0, 0, 16), App.Rotation())
sketch12.addGeometry([
    Part.Circle(V(39.441974, 88.42864, 0), V(0, 0, 1), 12.7455),
    Part.Circle(V(40.593265, 89.135265, 0), V(0, 0, 1), 10.504948),
], False)
sketch12.addConstraint([
    Sketcher.Constraint("Diameter", 0, Q("25.491001 mm")),
    Sketcher.Constraint("Diameter", 1, Q("21.009897 mm")),
    Sketcher.Constraint("DistanceY", -1, 1, 0, 3, Q("88.42864 mm")),
    Sketcher.Constraint("DistanceX", 0, 3, 1, 3, Q("1.151291 mm")),
    Sketcher.Constraint("DistanceX", -1, 1, 0, 3, Q("39.441974 mm")),
    Sketcher.Constraint("DistanceY", -1, 1, 1, 3, Q("89.135265 mm")),
])
pad6 = body.newObject("PartDesign::Pad", "Pad005")
pad6.Profile = sketch12
pad6.Length = 4
pad6.Reversed = True

# Sketch on XY plane
sketch13 = body.newObject("Sketcher::SketchObject", "Sketch012")
sketch13.AttachmentSupport = (doc.getObject("XY_Plane"), [""])
sketch13.MapMode = "FlatFace"
sketch13.AttachmentOffset = App.Placement(V(0, 0, 17), App.Rotation())
sketch13.addGeometry([
    Part.Circle(V(40.593265, 89.135265, 0), V(0, 0, 1), 10.504948),
    Part.Circle(V(41.099946, 89.295581, 0), V(0, 0, 1), 9.019825),
], False)
sketch13.addConstraint([
    Sketcher.Constraint("Diameter", 1, Q("18.03965 mm")),
    Sketcher.Constraint("Diameter", 0, Q("21.009897 mm")),
    Sketcher.Constraint("DistanceY", -1, 1, 1, 3, Q("89.295581 mm")),
    Sketcher.Constraint("DistanceX", 0, 3, 1, 3, Q("0.506681 mm")),
    Sketcher.Constraint("DistanceX", -1, 1, 0, 3, Q("40.593265 mm")),
    Sketcher.Constraint("DistanceY", -1, 1, 0, 3, Q("89.135265 mm")),
])
pad7 = body.newObject("PartDesign::Pad", "Pad006")
pad7.Profile = sketch13
pad7.Length = 5
pad7.Reversed = True

# Sketch on XY plane
sketch14 = body.newObject("Sketcher::SketchObject", "Sketch013")
sketch14.AttachmentSupport = (doc.getObject("XY_Plane"), [""])
sketch14.MapMode = "FlatFace"
sketch14.AttachmentOffset = App.Placement(V(0, 0, 18), App.Rotation())
sketch14.addGeometry([
    Part.Circle(V(41.099946, 89.295581, 0), V(0, 0, 1), 9.019825),
    Part.Circle(V(41.79538, 90.333459, 0), V(0, 0, 1), 6.837562),
], False)
sketch14.addConstraint([
    Sketcher.Constraint("Diameter", 0, Q("18.03965 mm")),
    Sketcher.Constraint("Diameter", 1, Q("13.675125 mm")),
    Sketcher.Constraint("DistanceY", -1, 1, 0, 3, Q("89.295581 mm")),
    Sketcher.Constraint("DistanceX", -1, 1, 1, 3, Q("41.79538 mm")),
    Sketcher.Constraint("DistanceY", -1, 1, 1, 3, Q("90.333459 mm")),
    Sketcher.Constraint("DistanceX", -1, 1, 0, 3, Q("41.099946 mm")),
])
pad8 = body.newObject("PartDesign::Pad", "Pad007")
pad8.Profile = sketch14
pad8.Length = 6
pad8.Reversed = True

# Sketch on XY plane
sketch15 = body.newObject("Sketcher::SketchObject", "Sketch014")
sketch15.AttachmentSupport = (doc.getObject("XY_Plane"), [""])
sketch15.MapMode = "FlatFace"
sketch15.AttachmentOffset = App.Placement(V(0, 0, 19), App.Rotation())
sketch15.addGeometry([
    Part.Circle(V(41.79538, 90.333459, 0), V(0, 0, 1), 6.837562),
    Part.Circle(V(42.054998, 90.430189, 0), V(0, 0, 1), 5.911229),
], False)
sketch15.addConstraint([
    Sketcher.Constraint("Diameter", 1, Q("11.822458 mm")),
    Sketcher.Constraint("Diameter", 0, Q("13.675125 mm")),
    Sketcher.Constraint("DistanceX", -1, 1, 0, 3, Q("41.79538 mm")),
    Sketcher.Constraint("DistanceY", -1, 1, 0, 3, Q("90.333459 mm")),
    Sketcher.Constraint("DistanceY", -1, 1, 1, 3, Q("90.430189 mm")),
    Sketcher.Constraint("DistanceX", 0, 3, 1, 3, Q("0.259618 mm")),
])
pad9 = body.newObject("PartDesign::Pad", "Pad008")
pad9.Profile = sketch15
pad9.Length = 7
pad9.Reversed = True

# Sketch on XY plane
sketch16 = body.newObject("Sketcher::SketchObject", "Sketch015")
sketch16.AttachmentSupport = (doc.getObject("XY_Plane"), [""])
sketch16.MapMode = "FlatFace"
sketch16.AttachmentOffset = App.Placement(V(0, 0, 20), App.Rotation())
sketch16.addGeometry([
    Part.Circle(V(42.054998, 90.430189, 0), V(0, 0, 1), 5.911229),
    Part.Circle(V(43.134318, 91.607796, 0), V(0, 0, 1), 3.525743),
], False)
sketch16.addConstraint([
    Sketcher.Constraint("Diameter", 0, Q("11.822458 mm")),
    Sketcher.Constraint("Diameter", 1, Q("7.051486 mm")),
    Sketcher.Constraint("DistanceY", -1, 1, 0, 3, Q("90.430189 mm")),
    Sketcher.Constraint("DistanceX", 0, 3, 1, 3, Q("1.07932 mm")),
    Sketcher.Constraint("DistanceX", -1, 1, 0, 3, Q("42.054998 mm")),
    Sketcher.Constraint("DistanceY", -1, 1, 1, 3, Q("91.607796 mm")),
])
pad10 = body.newObject("PartDesign::Pad", "Pad009")
pad10.Profile = sketch16
pad10.Length = 8
pad10.Reversed = True

# Sketch on XY plane
sketch17 = body.newObject("Sketcher::SketchObject", "Sketch016")
sketch17.AttachmentSupport = (doc.getObject("XY_Plane"), [""])
sketch17.MapMode = "FlatFace"
sketch17.AttachmentOffset = App.Placement(V(0, 0, 21), App.Rotation())
sketch17.addGeometry(Part.Circle(V(43.134318, 91.607796, 0), V(0, 0, 1), 3.525743), False)
sketch17.addConstraint([
    Sketcher.Constraint("Diameter", 0, Q("7.051486 mm")),
    Sketcher.Constraint("DistanceX", -1, 1, 0, 3, Q("43.134318 mm")),
    Sketcher.Constraint("DistanceY", -1, 1, 0, 3, Q("91.607796 mm")),
])
pad11 = body.newObject("PartDesign::Pad", "Pad010")
pad11.Profile = sketch17
pad11.Length = 9
pad11.Reversed = True

# Sketch on XY plane
sketch18 = body.newObject("Sketcher::SketchObject", "Sketch017")
sketch18.AttachmentSupport = (doc.getObject("XY_Plane"), [""])
sketch18.MapMode = "FlatFace"
sketch18.AttachmentOffset = App.Placement(V(0, 0, 12), App.Rotation())
sketch18.addGeometry([
    Part.BSplineCurve([V(82.506793, 90.430189, 0), V(85.773262, 89.844107, 0), V(84.718396, 82.229895, 0), V(79.062431, 83.437021, 0)], [4, 4], [0, 1], False, 3, [1, 1, 1, 1], False),
    Part.BSplineCurve([V(82.506793, 90.430189, 0), V(78.139071, 92.768466, 0), V(74.677375, 85.246682, 0), V(79.062431, 83.437021, 0)], [4, 4], [0, 1], False, 3, [1, 1, 1, 1], False),
], False)
sketch18.addConstraint([
    Sketcher.Constraint("Block", 0),
    Sketcher.Constraint("Block", 1),
])
pocket3 = body.newObject("PartDesign::Pocket", "Pocket002")
pocket3.Profile = sketch18
pocket3.Length = 2

doc.recompute()
